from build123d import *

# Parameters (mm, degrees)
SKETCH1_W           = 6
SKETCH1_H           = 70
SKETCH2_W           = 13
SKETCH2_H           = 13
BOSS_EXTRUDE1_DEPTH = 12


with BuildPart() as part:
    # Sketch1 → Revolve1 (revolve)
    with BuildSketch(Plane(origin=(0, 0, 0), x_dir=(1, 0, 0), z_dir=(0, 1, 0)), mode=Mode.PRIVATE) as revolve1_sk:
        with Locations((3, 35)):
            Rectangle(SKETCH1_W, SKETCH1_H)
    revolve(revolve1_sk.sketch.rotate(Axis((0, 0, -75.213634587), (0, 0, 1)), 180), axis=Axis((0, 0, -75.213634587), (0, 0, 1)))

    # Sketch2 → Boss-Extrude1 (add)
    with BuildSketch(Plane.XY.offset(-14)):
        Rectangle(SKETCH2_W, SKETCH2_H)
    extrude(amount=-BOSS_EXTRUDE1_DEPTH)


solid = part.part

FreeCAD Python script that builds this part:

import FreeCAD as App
import Part
import Sketcher
Q = App.Units.Quantity

doc = App.newDocument("Part")
params = doc.addObject("Spreadsheet::Sheet", "Params")
for row, (alias, value) in enumerate([
    ("sketch1_width", "6 mm"),
    ("sketch1_height", "70 mm"),
    ("revolution_angle", "360 deg"),
    ("sketch2_width", "13 mm"),
    ("pad1_length", "12 mm"),
], start=1):
    params.set(f"A{row}", alias)
    params.set(f"B{row}", "=" + value)
    params.setAlias(f"B{row}", alias)

body = doc.addObject("PartDesign::Body", "Body")

# Sketch on XZ plane
sketch1 = body.newObject("Sketcher::SketchObject", "Sketch")
sketch1.AttachmentSupport = (doc.getObject("XZ_Plane"), [""])
sketch1.MapMode = "FlatFace"
sketch1.addGeometry([
    Part.LineSegment(App.Vector(0, -70, 0), App.Vector(0, 0, 0)),
    Part.LineSegment(App.Vector(0, 0, 0), App.Vector(6, 0, 0)),
    Part.LineSegment(App.Vector(6, 0, 0), App.Vector(6, -70, 0)),
    Part.LineSegment(App.Vector(6, -70, 0), App.Vector(0, -70, 0)),
], False)
sketch1.addConstraint([
    Sketcher.Constraint("Coincident", 0, 2, 1, 1),
    Sketcher.Constraint("Coincident", 1, 2, 2, 1),
    Sketcher.Constraint("Coincident", 2, 2, 3, 1),
    Sketcher.Constraint("Coincident", 3, 2, 0, 1),
    Sketcher.Constraint("Vertical", 0),
    Sketcher.Constraint("Horizontal", 1),
    Sketcher.Constraint("Vertical", 2),
    Sketcher.Constraint("Horizontal", 3),
    Sketcher.Constraint("Coincident", 0, 2, -1, 1),
    Sketcher.Constraint("DistanceX", 1, 1, 1, 2, Q("6 mm")),
    Sketcher.Constraint("DistanceY", 0, 1, 0, 2, Q("70 mm")),
])
sketch1.setExpression("Constraints[9]", "Params.sketch1_width")
sketch1.setExpression("Constraints[10]", "Params.sketch1_height")
revolution = body.newObject("PartDesign::Revolution", "Revolution")
revolution.Profile = sketch1
revolution.ReferenceAxis = (sketch1, ["V_Axis"])
revolution.setExpression("Angle", "Params.revolution_angle")

# Sketch on XY plane
sketch2 = body.newObject("Sketcher::SketchObject", "Sketch001")
sketch2.AttachmentSupport = (doc.getObject("XY_Plane"), [""])
sketch2.MapMode = "FlatFace"
sketch2.AttachmentOffset = App.Placement(App.Vector(0, 0, -14), App.Rotation())
sketch2.addGeometry([
    Part.LineSegment(App.Vector(-6.5, 6.5, 0), App.Vector(-6.5, -6.5, 0)),
    Part.LineSegment(App.Vector(-6.5, -6.5, 0), App.Vector(6.5, -6.5, 0)),
    Part.LineSegment(App.Vector(6.5, -6.5, 0), App.Vector(6.5, 6.5, 0)),
    Part.LineSegment(App.Vector(6.5, 6.5, 0), App.Vector(-6.5, 6.5, 0)),
], False)
sketch2.addConstraint([
    Sketcher.Constraint("Coincident", 0, 2, 1, 1),
    Sketcher.Constraint("Coincident", 1, 2, 2, 1),
    Sketcher.Constraint("Coincident", 2, 2, 3, 1),
    Sketcher.Constraint("Coincident", 3, 2, 0, 1),
    Sketcher.Constraint("Vertical", 0),
    Sketcher.Constraint("Horizontal", 1),
    Sketcher.Constraint("Vertical", 2),
    Sketcher.Constraint("Horizontal", 3),
    Sketcher.Constraint("Symmetric", 0, 2, 2, 2, -1, 1),
    Sketcher.Constraint("Equal", 3, 0),
    Sketcher.Constraint("DistanceX", 1, 1, 1, 2, Q("13 mm")),
])
sketch2.setExpression("Constraints[10]", "Params.sketch2_width")
pad1 = body.newObject("PartDesign::Pad", "Pad")
pad1.Profile = sketch2
pad1.setExpression("Length", "Params.pad1_length")
pad1.Reversed = True

doc.recompute()
